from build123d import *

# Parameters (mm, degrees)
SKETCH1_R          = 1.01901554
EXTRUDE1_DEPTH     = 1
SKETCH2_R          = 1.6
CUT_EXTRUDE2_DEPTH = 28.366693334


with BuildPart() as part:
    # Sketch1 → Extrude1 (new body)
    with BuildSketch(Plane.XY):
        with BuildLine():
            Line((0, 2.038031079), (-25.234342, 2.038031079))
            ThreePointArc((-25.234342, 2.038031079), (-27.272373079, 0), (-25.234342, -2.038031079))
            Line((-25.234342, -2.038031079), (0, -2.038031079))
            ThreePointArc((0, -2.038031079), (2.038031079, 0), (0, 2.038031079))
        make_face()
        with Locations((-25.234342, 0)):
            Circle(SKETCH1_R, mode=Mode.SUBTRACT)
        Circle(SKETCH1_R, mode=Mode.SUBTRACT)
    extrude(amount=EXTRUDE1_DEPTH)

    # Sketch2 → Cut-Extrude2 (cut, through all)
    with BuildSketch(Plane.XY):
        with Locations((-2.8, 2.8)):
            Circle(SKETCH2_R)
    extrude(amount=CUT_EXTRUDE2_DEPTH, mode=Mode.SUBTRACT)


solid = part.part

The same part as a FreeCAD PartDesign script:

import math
import FreeCAD as App
import Part
import Sketcher

V = App.Vector

doc = App.newDocument("Part")
body = doc.addObject("PartDesign::Body", "Body")

# Sketch on XY plane
sketch1 = body.newObject("Sketcher::SketchObject", "Sketch")
sketch1.AttachmentSupport = (doc.getObject("XY_Plane"), [""])
sketch1.MapMode = "FlatFace"
sketch1.addGeometry([
    Part.LineSegment(V(0, 2, 0), V(-25.2, 2, 0)),  # 0
    Part.ArcOfCircle(Part.Circle(V(-25.2, 0, 0), V(0, 0, 1), 2), math.radians(90), math.radians(270)),  # 1
    Part.LineSegment(V(-25.2, -2, 0), V(0, -2, 0)),  # 2
    Part.ArcOfCircle(Part.Circle(V(0, 0, 0), V(0, 0, 1), 2), math.radians(-90), math.radians(90)),  # 3
    Part.Circle(V(-25.2, 0, 0), V(0, 0, 1), 1),  # 4
    Part.Circle(V(0, 0, 0), V(0, 0, 1), 1),  # 5
], False)
sketch1.addConstraint([
    Sketcher.Constraint("Tangent", 0, 2, 1, 1),
    Sketcher.Constraint("Tangent", 1, 2, 2, 1),
    Sketcher.Constraint("Tangent", 2, 2, 3, 1),
    Sketcher.Constraint("Tangent", 3, 2, 0, 1),
    Sketcher.Constraint("Horizontal", 0),
    Sketcher.Constraint("Horizontal", 2),
    Sketcher.Constraint("Coincident", 3, 3, -1, 1),
    Sketcher.Constraint("Coincident", 5, 3, -1, 1),
    Sketcher.Constraint("Coincident", 4, 3, 1, 3),
    Sketcher.Constraint("Equal", 4, 5),
    Sketcher.Constraint("Diameter", 4, 2.038031),
    Sketcher.Constraint("Radius", 1, 2.038031),
    Sketcher.Constraint("DistanceX", 0, 2, 0, 1, 25.234342),
])
pad1 = body.newObject("PartDesign::Pad", "Pad")
pad1.Profile = sketch1
pad1.Length = 1

# Sketch on XY plane
sketch2 = body.newObject("Sketcher::SketchObject", "Sketch001")
sketch2.AttachmentSupport = (doc.getObject("XY_Plane"), [""])
sketch2.MapMode = "FlatFace"
sketch2.addGeometry(Part.Circle(V(-2.8, 2.8, 0), V(0, 0, 1), 1.6), False)
sketch2.addConstraint([
    Sketcher.Constraint("Diameter", 0, 3.2),
    Sketcher.Constraint("DistanceX", 0, 3, -1, 1, 2.8),
    Sketcher.Constraint("DistanceY", -1, 1, 0, 3, 2.8),
])
pocket1 = body.newObject("PartDesign::Pocket", "Pocket")
pocket1.Profile = sketch2
pocket1.Type = "ThroughAll"
pocket1.Reversed = True

doc.recompute()
